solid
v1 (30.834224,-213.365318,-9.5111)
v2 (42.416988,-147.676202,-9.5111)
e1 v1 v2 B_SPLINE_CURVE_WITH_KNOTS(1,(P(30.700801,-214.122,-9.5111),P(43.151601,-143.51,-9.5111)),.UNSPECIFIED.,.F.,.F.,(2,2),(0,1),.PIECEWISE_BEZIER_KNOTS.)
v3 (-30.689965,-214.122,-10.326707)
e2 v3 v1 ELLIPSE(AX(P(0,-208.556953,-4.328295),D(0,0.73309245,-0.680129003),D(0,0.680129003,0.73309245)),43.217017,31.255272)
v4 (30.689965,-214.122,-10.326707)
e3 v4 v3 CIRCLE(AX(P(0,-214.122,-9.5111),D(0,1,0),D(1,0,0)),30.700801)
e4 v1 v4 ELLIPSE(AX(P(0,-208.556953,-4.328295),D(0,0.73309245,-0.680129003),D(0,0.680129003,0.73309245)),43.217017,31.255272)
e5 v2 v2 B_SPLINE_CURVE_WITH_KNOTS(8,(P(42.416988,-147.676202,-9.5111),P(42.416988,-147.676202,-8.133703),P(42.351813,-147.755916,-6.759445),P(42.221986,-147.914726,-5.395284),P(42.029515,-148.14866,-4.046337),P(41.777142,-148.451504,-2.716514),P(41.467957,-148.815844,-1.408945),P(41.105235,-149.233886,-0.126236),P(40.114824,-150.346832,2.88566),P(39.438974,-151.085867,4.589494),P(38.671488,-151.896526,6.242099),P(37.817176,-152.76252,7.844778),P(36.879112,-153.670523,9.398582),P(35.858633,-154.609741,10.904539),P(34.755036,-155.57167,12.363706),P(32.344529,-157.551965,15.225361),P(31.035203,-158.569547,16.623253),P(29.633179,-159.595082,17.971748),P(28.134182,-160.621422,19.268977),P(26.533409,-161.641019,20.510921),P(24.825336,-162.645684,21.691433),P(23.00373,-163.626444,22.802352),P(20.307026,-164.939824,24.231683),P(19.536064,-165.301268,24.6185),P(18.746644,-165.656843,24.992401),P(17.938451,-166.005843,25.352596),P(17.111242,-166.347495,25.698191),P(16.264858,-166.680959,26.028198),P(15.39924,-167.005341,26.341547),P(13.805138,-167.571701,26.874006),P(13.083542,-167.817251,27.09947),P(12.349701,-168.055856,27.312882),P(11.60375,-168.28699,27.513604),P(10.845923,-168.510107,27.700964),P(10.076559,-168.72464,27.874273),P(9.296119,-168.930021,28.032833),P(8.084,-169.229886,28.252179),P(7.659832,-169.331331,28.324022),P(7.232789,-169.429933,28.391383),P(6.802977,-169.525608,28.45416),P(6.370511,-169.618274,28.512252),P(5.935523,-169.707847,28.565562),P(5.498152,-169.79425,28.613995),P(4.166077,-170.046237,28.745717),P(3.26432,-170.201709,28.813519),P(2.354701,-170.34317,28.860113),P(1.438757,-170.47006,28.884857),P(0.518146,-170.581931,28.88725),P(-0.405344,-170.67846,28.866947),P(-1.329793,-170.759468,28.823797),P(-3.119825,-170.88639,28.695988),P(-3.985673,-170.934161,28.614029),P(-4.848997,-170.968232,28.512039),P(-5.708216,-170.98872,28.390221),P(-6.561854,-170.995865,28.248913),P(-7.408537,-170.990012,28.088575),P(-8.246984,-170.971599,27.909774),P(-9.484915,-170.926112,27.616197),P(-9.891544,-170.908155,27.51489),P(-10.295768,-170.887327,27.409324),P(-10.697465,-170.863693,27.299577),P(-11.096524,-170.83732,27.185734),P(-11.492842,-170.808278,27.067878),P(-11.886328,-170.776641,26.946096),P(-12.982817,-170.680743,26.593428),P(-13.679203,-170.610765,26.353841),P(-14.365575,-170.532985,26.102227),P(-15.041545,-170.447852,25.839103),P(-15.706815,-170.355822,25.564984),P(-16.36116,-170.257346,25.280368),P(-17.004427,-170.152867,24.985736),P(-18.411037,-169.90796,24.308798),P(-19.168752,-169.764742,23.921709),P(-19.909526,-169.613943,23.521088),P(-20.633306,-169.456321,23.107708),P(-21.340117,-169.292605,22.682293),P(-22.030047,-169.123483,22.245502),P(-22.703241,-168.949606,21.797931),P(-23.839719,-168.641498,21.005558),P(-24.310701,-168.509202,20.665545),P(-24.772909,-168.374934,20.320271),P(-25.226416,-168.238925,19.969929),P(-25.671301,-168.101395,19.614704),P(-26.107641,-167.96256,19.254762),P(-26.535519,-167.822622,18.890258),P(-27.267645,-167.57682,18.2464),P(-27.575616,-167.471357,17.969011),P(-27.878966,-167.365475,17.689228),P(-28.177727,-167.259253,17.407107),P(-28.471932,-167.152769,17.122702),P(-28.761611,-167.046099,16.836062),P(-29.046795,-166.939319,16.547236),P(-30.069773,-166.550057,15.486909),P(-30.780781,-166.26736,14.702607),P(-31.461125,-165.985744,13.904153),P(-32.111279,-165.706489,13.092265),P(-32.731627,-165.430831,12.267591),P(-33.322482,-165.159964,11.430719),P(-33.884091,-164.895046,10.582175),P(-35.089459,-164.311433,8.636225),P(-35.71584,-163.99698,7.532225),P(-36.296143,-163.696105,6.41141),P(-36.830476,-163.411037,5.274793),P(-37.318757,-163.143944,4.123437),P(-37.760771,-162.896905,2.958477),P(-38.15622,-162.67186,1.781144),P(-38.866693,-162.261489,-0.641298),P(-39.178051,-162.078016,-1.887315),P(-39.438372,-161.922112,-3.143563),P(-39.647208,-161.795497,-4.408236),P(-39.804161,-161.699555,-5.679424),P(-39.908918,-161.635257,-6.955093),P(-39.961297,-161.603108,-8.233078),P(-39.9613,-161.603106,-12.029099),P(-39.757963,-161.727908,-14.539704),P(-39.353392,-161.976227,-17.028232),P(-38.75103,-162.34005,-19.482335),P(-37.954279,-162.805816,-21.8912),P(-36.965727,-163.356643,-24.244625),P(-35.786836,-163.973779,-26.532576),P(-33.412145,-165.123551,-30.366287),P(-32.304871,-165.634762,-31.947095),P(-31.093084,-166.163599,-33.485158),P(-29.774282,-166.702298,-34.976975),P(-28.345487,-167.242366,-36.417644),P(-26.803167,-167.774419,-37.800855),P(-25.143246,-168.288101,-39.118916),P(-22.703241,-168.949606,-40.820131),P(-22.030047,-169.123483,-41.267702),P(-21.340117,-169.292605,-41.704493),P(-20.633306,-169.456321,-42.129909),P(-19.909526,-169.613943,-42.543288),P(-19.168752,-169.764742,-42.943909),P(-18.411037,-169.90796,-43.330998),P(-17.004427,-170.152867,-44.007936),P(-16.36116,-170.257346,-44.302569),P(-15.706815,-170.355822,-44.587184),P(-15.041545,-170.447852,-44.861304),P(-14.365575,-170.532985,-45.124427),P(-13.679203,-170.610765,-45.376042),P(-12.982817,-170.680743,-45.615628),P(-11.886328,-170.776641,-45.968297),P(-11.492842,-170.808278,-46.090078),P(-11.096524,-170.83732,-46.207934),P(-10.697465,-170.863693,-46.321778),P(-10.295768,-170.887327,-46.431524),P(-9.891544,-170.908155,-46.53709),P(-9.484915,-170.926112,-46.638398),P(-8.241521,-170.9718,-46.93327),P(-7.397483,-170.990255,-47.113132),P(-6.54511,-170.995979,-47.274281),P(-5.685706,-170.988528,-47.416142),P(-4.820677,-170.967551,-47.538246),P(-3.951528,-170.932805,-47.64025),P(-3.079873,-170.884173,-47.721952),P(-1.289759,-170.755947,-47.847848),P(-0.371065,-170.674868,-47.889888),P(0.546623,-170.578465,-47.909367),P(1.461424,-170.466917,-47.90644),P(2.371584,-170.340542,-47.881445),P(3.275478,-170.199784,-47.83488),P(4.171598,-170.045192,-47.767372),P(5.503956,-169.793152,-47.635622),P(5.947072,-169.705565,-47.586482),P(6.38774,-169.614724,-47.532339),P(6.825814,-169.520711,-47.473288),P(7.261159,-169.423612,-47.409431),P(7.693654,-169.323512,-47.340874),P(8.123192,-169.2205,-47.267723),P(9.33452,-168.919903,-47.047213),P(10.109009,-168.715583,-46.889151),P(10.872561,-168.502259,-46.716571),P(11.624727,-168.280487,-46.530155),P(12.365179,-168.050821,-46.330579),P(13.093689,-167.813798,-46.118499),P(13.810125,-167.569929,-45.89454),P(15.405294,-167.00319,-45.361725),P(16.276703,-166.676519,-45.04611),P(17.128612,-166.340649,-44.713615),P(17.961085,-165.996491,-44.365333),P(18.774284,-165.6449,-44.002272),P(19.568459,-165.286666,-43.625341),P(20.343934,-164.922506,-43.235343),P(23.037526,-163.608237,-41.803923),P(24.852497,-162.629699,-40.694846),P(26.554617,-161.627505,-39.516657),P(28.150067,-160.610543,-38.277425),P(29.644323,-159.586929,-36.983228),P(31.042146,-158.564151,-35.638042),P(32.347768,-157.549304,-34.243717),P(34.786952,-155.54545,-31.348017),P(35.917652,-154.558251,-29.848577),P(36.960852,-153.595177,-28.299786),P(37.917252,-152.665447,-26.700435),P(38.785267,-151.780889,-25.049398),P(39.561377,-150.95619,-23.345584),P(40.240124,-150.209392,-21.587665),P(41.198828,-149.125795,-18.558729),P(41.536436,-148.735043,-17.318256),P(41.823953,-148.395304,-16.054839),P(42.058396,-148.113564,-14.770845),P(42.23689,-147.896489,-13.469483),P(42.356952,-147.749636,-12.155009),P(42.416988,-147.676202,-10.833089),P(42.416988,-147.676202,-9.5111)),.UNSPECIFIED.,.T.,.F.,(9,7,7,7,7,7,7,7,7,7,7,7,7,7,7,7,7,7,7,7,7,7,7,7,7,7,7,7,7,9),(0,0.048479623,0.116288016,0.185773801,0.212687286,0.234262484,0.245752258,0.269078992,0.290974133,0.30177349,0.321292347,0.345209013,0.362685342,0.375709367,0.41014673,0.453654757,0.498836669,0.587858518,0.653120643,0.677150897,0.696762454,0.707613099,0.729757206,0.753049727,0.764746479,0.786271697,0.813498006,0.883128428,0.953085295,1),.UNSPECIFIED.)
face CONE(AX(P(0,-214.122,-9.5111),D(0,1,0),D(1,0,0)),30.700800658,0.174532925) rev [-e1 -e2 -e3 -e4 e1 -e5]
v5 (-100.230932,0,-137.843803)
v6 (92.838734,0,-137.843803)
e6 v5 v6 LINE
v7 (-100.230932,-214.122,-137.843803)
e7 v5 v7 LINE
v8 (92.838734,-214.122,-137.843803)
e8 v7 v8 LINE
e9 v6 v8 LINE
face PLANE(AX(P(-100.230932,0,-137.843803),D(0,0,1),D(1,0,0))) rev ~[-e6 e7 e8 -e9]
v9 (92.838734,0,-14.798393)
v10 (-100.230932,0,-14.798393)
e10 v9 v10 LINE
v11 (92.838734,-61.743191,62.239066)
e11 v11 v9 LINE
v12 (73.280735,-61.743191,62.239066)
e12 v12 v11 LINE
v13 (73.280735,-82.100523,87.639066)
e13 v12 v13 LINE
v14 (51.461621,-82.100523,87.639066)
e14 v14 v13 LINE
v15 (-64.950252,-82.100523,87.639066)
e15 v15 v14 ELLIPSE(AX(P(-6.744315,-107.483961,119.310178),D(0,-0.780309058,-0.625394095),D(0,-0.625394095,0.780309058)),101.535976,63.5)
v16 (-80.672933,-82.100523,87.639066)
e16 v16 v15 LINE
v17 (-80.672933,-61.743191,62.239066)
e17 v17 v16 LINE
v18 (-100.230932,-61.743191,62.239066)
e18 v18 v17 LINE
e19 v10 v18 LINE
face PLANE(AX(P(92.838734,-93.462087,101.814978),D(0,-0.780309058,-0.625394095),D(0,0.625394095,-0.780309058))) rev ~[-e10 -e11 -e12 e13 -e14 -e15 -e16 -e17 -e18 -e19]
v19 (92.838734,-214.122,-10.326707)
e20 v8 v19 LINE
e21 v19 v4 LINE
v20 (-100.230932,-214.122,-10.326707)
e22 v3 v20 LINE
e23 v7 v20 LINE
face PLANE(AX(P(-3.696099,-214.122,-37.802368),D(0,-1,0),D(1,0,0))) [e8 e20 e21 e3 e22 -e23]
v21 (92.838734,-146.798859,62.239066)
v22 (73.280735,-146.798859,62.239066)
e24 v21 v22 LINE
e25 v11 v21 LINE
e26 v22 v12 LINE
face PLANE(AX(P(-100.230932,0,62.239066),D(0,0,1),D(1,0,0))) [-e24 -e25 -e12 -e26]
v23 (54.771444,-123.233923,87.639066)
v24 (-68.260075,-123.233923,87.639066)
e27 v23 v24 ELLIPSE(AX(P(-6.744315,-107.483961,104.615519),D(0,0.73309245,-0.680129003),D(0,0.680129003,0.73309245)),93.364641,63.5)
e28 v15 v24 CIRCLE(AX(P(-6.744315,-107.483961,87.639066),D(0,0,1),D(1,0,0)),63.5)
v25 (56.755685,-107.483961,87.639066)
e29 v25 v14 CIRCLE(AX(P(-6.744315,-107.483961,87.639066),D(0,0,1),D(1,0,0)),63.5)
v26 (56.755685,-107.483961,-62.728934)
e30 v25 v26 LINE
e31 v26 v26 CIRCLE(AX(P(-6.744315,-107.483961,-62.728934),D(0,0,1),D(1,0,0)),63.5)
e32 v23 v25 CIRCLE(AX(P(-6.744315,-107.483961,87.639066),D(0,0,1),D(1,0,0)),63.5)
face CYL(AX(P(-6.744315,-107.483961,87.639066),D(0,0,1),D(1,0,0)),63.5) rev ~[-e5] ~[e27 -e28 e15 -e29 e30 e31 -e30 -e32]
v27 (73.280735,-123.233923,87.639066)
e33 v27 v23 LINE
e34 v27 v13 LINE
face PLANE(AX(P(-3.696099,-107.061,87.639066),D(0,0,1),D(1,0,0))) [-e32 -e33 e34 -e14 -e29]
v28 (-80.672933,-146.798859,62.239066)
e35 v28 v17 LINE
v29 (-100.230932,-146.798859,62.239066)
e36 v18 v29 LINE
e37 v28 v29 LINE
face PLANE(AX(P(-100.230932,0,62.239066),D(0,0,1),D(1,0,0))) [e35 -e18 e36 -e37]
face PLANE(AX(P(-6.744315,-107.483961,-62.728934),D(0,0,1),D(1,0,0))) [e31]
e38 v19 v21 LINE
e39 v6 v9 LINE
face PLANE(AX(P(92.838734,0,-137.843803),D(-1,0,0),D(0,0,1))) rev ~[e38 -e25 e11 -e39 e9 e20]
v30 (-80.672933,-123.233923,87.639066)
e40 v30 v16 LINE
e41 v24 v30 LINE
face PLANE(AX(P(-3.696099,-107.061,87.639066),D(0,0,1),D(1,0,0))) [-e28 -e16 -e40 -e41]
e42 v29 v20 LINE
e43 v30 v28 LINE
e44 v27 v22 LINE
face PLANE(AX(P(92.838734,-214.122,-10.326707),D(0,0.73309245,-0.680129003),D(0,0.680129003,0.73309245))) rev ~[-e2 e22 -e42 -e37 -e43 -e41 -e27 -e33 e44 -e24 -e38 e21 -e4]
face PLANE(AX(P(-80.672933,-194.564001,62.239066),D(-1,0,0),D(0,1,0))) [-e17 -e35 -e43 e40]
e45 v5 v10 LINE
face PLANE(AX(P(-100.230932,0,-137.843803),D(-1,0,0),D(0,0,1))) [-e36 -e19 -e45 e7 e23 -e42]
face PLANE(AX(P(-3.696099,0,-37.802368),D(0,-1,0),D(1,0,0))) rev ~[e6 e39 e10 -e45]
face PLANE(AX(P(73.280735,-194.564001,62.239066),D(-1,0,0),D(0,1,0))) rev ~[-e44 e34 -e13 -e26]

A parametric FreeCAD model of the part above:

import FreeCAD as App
import Part
import Sketcher

V = App.Vector
Q = App.Units.Quantity


def add_polygon(sketch, points):
    """Adds a closed chain of lines whose ends are joined by coincident constraints."""
    first, n = sketch.GeometryCount, len(points)
    for a, b in zip(points, points[1:] + points[:1]):
        sketch.addGeometry(Part.LineSegment(App.Vector(*a, 0), App.Vector(*b, 0)), False)
    for i in range(n):
        sketch.addConstraint(Sketcher.Constraint("Coincident", first + i, 2, first + (i + 1) % n, 1))

doc = App.newDocument("Part")
body = doc.addObject("PartDesign::Body", "Body")

# Sketch on XZ plane
sketch1 = body.newObject("Sketcher::SketchObject", "Sketch")
sketch1.AttachmentSupport = (doc.getObject("XZ_Plane"), [""])
sketch1.MapMode = "FlatFace"
add_polygon(sketch1, [(-100, 62), (-100, -138), (93, -138), (93, 62)])  # lines 0-3
sketch1.addConstraint(Sketcher.Constraint("Vertical", 0))
sketch1.addConstraint(Sketcher.Constraint("Horizontal", 1))
sketch1.addConstraint(Sketcher.Constraint("Vertical", 2))
sketch1.addConstraint(Sketcher.Constraint("Horizontal", 3))
sketch1.addConstraint(Sketcher.Constraint("DistanceY", 0, 2, 0, 1, Q("200.082868 mm")))
sketch1.addConstraint(Sketcher.Constraint("DistanceX", 1, 1, 1, 2, Q("193.069667 mm")))
sketch1.addConstraint(Sketcher.Constraint("DistanceX", 0, 2, -1, 1, Q("100.230932 mm")))
sketch1.addConstraint(Sketcher.Constraint("DistanceY", 0, 2, -1, 1, Q("137.843803 mm")))
pad1 = body.newObject("PartDesign::Pad", "Pad")
pad1.Profile = sketch1
pad1.Length = Q("8.43 in")

# Sketch on XY plane
sketch2 = body.newObject("Sketcher::SketchObject", "Sketch001")
sketch2.AttachmentSupport = (doc.getObject("XY_Plane"), [""])
sketch2.MapMode = "FlatFace"
sketch2.AttachmentOffset = App.Placement(V(0, 0, 62.239066), App.Rotation())
add_polygon(sketch2, [(-81, -20), (-81, -195), (73, -195), (73, -20)])  # lines 0-3
sketch2.addConstraint(Sketcher.Constraint("Vertical", 0))
sketch2.addConstraint(Sketcher.Constraint("Horizontal", 1))
sketch2.addConstraint(Sketcher.Constraint("Vertical", 2))
sketch2.addConstraint(Sketcher.Constraint("Horizontal", 3))
sketch2.addConstraint(Sketcher.Constraint("DistanceY", 0, 2, 0, 1, Q("6.89 in")))
sketch2.addConstraint(Sketcher.Constraint("DistanceY", 0, 2, -1, 1, Q("7.66 in")))
sketch2.addConstraint(Sketcher.Constraint("DistanceX", 1, 1, 1, 2, Q("153.953668 mm")))
sketch2.addConstraint(Sketcher.Constraint("DistanceX", 0, 2, -1, 1, Q("80.672933 mm")))
pad2 = body.newObject("PartDesign::Pad", "Pad001")
pad2.Profile = sketch2
pad2.Length = Q("1 in")

# Sketch on XY plane
sketch3 = body.newObject("Sketcher::SketchObject", "Sketch002")
sketch3.AttachmentSupport = (doc.getObject("XY_Plane"), [""])
sketch3.MapMode = "FlatFace"
sketch3.AttachmentOffset = App.Placement(V(0, 0, 87.639066), App.Rotation())
sketch3.addGeometry(Part.Circle(V(-7, -107, 0), V(0, 0, 1), 64), False)
sketch3.addConstraint(Sketcher.Constraint("Diameter", 0, Q("5 in")))
sketch3.addConstraint(Sketcher.Constraint("DistanceY", 0, 3, -1, 1, Q("107.483961 mm")))
sketch3.addConstraint(Sketcher.Constraint("DistanceX", 0, 3, -1, 1, Q("6.744315 mm")))
pocket1 = body.newObject("PartDesign::Pocket", "Pocket")
pocket1.Profile = sketch3
pocket1.Length = Q("5.92 in")

# Sketch on XZ plane
sketch4 = body.newObject("Sketcher::SketchObject", "Sketch003")
sketch4.AttachmentSupport = (doc.getObject("XZ_Plane"), [""])
sketch4.MapMode = "FlatFace"
sketch4.AttachmentOffset = App.Placement(V(0, 0, 8.43 * 25.4), App.Rotation())
sketch4.addGeometry(Part.Circle(V(0, -10, 0), V(0, 0, 1), 31), False)
sketch4.addConstraint(Sketcher.Constraint("PointOnObject", 0, 3, -2))
sketch4.addConstraint(Sketcher.Constraint("Diameter", 0, Q("61.401601 mm")))
sketch4.addConstraint(Sketcher.Constraint("DistanceY", 0, 3, -1, 1, Q("9.5111 mm")))
pocket2 = body.newObject("PartDesign::Pocket", "Pocket001")
pocket2.Profile = sketch4
pocket2.Length = Q("2.78 in")
pocket2.TaperAngle = 10

# Sketch on YZ plane
sketch5 = body.newObject("Sketcher::SketchObject", "Sketch004")
sketch5.AttachmentSupport = (doc.getObject("YZ_Plane"), [""])
sketch5.MapMode = "FlatFace"
sketch5.AttachmentOffset = App.Placement(V(0, 0, 92.838734), App.Rotation())
add_polygon(sketch5, [(-214, 62), (-214, -10), (-90, 123), (-194, 123)])  # lines 0-3
sketch5.addConstraint(Sketcher.Constraint("Vertical", 0))
sketch5.addConstraint(Sketcher.Constraint("Horizontal", 2))
sketch5.addConstraint(Sketcher.Constraint("DistanceX", 0, 2, -1, 1, Q("8.43 in")))
sketch5.addConstraint(Sketcher.Constraint("Distance", 1, Q("182.24934 mm")))
sketch5.addConstraint(Sketcher.Constraint("DistanceX", 2, 2, 2, 1, Q("104.303956 mm")))
sketch5.addConstraint(Sketcher.Constraint("DistanceY", 0, 2, 0, 1, Q("72.565773 mm")))
sketch5.addConstraint(Sketcher.Constraint("DistanceX", 1, 2, -1, 1, Q("90.168938 mm")))
sketch5.addConstraint(Sketcher.Constraint("DistanceY", -1, 1, 1, 2, Q("123.278908 mm")))
pocket3 = body.newObject("PartDesign::Pocket", "Pocket002")
pocket3.Profile = sketch5
pocket3.Length = Q("14.44 in")

# Sketch on YZ plane
sketch6 = body.newObject("Sketcher::SketchObject", "Sketch005")
sketch6.AttachmentSupport = (doc.getObject("YZ_Plane"), [""])
sketch6.MapMode = "FlatFace"
sketch6.AttachmentOffset = App.Placement(V(0, 0, 92.838734), App.Rotation())
add_polygon(sketch6, [(-93, 102), (0, -15), (0, 62), (-35, 119)])  # lines 0-3
sketch6.addConstraint(Sketcher.Constraint("Vertical", 1))
sketch6.addConstraint(Sketcher.Constraint("PointOnObject", 0, 2, -2))
sketch6.addConstraint(Sketcher.Constraint("DistanceY", 1, 1, 1, 2, Q("77.037458 mm")))
sketch6.addConstraint(Sketcher.Constraint("DistanceX", 2, 2, -1, 1, Q("34.735929 mm")))
sketch6.addConstraint(Sketcher.Constraint("DistanceY", -1, 1, 2, 2, Q("118.593872 mm")))
sketch6.addConstraint(Sketcher.Constraint("DistanceY", 0, 2, 3, 2, Q("116.61337 mm")))
sketch6.addConstraint(Sketcher.Constraint("Distance", 0, Q("149.445107 mm")))
sketch6.addConstraint(Sketcher.Constraint("Distance", 2, Q("66.200067 mm")))
pocket4 = body.newObject("PartDesign::Pocket", "Pocket003")
pocket4.Profile = sketch6
pocket4.Type = "ThroughAll"

doc.recompute()
